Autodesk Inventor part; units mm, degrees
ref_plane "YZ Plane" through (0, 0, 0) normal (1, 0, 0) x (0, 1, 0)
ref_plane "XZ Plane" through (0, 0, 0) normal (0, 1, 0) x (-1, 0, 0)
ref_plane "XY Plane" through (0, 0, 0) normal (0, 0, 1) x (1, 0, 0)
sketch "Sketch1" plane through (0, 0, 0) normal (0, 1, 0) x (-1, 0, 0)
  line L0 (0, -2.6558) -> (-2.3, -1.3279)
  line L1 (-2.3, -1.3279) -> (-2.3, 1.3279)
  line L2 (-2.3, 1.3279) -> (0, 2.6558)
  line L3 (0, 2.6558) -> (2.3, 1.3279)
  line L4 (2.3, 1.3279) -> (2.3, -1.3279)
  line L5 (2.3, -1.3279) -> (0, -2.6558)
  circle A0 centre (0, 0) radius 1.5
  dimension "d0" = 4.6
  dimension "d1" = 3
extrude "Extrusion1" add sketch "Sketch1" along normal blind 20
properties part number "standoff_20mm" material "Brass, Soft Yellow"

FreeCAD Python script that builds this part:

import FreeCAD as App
import Part
import Sketcher
from FreeCAD import Vector
Q = App.Units.Quantity


def add_polygon(sketch, points):
    """Adds a closed chain of lines whose ends are joined by coincident constraints."""
    first, n = sketch.GeometryCount, len(points)
    for a, b in zip(points, points[1:] + points[:1]):
        sketch.addGeometry(Part.LineSegment(App.Vector(*a, 0), App.Vector(*b, 0)), False)
    for i in range(n):
        sketch.addConstraint(Sketcher.Constraint("Coincident", first + i, 2, first + (i + 1) % n, 1))

doc = App.newDocument("Part")
params = doc.addObject("Spreadsheet::Sheet", "Params")
for row, (alias, value) in enumerate([
    ("sketch1_diameter", "3 mm"),
    ("pad1_length", "20 mm"),
], start=1):
    params.set(f"A{row}", alias)
    params.set(f"B{row}", "=" + value)
    params.setAlias(f"B{row}", alias)

body = doc.addObject("PartDesign::Body", "Body")

sketch1 = body.newObject("Sketcher::SketchObject", "Sketch")
sketch1.AttachmentSupport = (doc.getObject("XZ_Plane"), [""])
sketch1.MapMode = "FlatFace"
add_polygon(sketch1, [(2.3, -1.3), (0, -2.7), (-2.3, -1.3), (-2.3, 1.3), (0, 2.7), (2.3, 1.3)])
sketch1.addGeometry(Part.Circle(Vector(0, 0, 0), Vector(0, 0, 1), 1.5), False)
sketch1.addConstraint([
    Sketcher.Constraint("Vertical", 2),
    Sketcher.Constraint("Vertical", 5),
    Sketcher.Constraint("Coincident", 6, 3, -1, 1),
    Sketcher.Constraint("Symmetric", 0, 2, 3, 2, -1, 1),
    Sketcher.Constraint("Symmetric", 1, 2, 4, 2, -1, 1),
    Sketcher.Constraint("PointOnObject", 0, 2, -2),
    Sketcher.Constraint("Parallel", 0, 3),
    Sketcher.Constraint("Horizontal", 2, 2, 4, 2),
    Sketcher.Constraint("Diameter", 6, Q("3 mm")),
    Sketcher.Constraint("DistanceX", 2, 2, 4, 2, Q("4.6 mm")),
    Sketcher.Constraint("Angle", 0, Q("-150 deg")),
    Sketcher.Constraint("DistanceY", 2, 1, 2, 2, Q("2.6558 mm")),
])
sketch1.setExpression("Constraints[14]", "Params.sketch1_diameter")
pad1 = body.newObject("PartDesign::Pad", "Pad")
pad1.Profile = sketch1
pad1.setExpression("Length", "Params.pad1_length")
pad1.Reversed = True

doc.recompute()
